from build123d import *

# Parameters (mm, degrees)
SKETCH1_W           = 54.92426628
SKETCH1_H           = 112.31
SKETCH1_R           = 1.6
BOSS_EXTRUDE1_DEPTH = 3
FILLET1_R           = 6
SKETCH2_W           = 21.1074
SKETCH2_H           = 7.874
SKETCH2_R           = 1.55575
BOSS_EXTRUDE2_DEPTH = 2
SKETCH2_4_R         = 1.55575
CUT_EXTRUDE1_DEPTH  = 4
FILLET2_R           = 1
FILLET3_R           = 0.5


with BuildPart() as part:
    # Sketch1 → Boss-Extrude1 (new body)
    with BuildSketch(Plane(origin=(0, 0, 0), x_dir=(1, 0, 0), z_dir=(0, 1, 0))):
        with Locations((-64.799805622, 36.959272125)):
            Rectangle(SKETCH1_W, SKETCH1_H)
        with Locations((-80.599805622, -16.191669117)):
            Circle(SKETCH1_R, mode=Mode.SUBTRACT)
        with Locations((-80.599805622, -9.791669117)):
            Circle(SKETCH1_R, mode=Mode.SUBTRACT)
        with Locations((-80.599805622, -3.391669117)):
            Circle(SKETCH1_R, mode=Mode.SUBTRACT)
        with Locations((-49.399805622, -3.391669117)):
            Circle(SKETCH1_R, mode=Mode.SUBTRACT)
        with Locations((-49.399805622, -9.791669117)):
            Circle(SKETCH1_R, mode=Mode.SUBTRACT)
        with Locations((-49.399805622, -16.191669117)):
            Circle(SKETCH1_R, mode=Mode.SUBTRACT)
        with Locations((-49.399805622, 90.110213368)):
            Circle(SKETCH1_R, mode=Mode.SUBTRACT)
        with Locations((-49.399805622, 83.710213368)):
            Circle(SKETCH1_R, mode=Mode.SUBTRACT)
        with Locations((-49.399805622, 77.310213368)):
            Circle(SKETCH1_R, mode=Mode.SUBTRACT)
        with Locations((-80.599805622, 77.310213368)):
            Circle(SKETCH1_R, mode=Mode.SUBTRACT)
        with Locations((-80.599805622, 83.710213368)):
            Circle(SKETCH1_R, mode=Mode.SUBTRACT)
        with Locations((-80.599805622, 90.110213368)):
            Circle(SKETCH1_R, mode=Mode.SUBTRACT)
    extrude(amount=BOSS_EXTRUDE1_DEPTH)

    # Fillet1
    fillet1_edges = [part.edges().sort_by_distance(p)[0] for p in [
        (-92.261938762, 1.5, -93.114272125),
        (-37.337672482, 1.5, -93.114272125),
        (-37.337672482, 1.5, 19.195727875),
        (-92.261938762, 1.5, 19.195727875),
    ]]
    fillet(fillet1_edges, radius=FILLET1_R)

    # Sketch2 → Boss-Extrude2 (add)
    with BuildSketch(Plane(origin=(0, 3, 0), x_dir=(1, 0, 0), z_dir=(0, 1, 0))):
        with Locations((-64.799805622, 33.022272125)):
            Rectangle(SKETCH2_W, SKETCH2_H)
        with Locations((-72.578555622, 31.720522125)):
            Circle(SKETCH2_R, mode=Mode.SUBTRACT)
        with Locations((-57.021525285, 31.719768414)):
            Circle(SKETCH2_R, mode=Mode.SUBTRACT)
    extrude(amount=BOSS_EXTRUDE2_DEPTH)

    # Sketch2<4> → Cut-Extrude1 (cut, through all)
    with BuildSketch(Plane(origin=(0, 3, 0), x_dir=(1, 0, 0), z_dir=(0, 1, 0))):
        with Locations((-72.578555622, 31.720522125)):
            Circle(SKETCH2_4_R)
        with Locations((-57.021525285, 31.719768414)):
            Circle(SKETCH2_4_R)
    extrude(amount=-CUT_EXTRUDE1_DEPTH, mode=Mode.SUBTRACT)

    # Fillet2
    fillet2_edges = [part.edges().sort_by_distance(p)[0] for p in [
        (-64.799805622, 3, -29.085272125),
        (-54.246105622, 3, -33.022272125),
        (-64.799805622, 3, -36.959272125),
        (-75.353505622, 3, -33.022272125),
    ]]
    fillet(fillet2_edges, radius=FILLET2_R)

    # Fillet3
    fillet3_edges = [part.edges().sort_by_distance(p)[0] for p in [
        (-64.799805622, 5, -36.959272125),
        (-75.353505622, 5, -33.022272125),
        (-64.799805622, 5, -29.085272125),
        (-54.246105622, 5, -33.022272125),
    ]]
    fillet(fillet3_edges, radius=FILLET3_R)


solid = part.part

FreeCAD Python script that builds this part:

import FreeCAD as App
import Part
import Sketcher


def edges_at(feature, points):
    """Names of the edges that pass closest to the given points."""
    edges = feature.Shape.Edges
    near = lambda p: min(range(len(edges)), key=lambda i: edges[i].distToShape(Part.Vertex(*p))[0])
    return sorted({f"Edge{near(p) + 1}" for p in points})


def add_polygon(sketch, points):
    """Adds a closed chain of lines whose ends are joined by coincident constraints."""
    first, n = sketch.GeometryCount, len(points)
    for a, b in zip(points, points[1:] + points[:1]):
        sketch.addGeometry(Part.LineSegment(App.Vector(*a, 0), App.Vector(*b, 0)), False)
    for i in range(n):
        sketch.addConstraint(Sketcher.Constraint("Coincident", first + i, 2, first + (i + 1) % n, 1))

doc = App.newDocument("Part")
body = doc.addObject("PartDesign::Body", "Body")

# Sketch on XZ plane
sketch1 = body.newObject("Sketcher::SketchObject", "Sketch")
sketch1.AttachmentSupport = (doc.getObject("XZ_Plane"), [""])
sketch1.MapMode = "FlatFace"
add_polygon(sketch1, [(-92.3, -93.1), (-92.3, 19.2), (-37.3, 19.2), (-37.3, -93.1)])  # lines 0-3
sketch1.addGeometry(Part.Circle(App.Vector(-80.6, 16.2, 0), App.Vector(0, 0, 1), 1.6), False)  # 4
sketch1.addGeometry(Part.Circle(App.Vector(-80.6, 9.8, 0), App.Vector(0, 0, 1), 1.6), False)  # 5
sketch1.addGeometry(Part.Circle(App.Vector(-80.6, 3.4, 0), App.Vector(0, 0, 1), 1.6), False)  # 6
sketch1.addGeometry(Part.Circle(App.Vector(-49.4, 16.2, 0), App.Vector(0, 0, 1), 1.6), False)  # 7
sketch1.addGeometry(Part.Circle(App.Vector(-49.4, 9.8, 0), App.Vector(0, 0, 1), 1.6), False)  # 8
sketch1.addGeometry(Part.Circle(App.Vector(-49.4, 3.4, 0), App.Vector(0, 0, 1), 1.6), False)  # 9
sketch1.addGeometry(Part.Circle(App.Vector(-80.6, -77.3, 0), App.Vector(0, 0, 1), 1.6), False)  # 10
sketch1.addGeometry(Part.Circle(App.Vector(-80.6, -83.7, 0), App.Vector(0, 0, 1), 1.6), False)  # 11
sketch1.addGeometry(Part.Circle(App.Vector(-80.6, -90.1, 0), App.Vector(0, 0, 1), 1.6), False)  # 12
sketch1.addGeometry(Part.Circle(App.Vector(-49.4, -77.3, 0), App.Vector(0, 0, 1), 1.6), False)  # 13
sketch1.addGeometry(Part.Circle(App.Vector(-49.4, -83.7, 0), App.Vector(0, 0, 1), 1.6), False)  # 14
sketch1.addGeometry(Part.Circle(App.Vector(-49.4, -90.1, 0), App.Vector(0, 0, 1), 1.6), False)  # 15
sketch1.addConstraint([
    Sketcher.Constraint("Vertical", 0),
    Sketcher.Constraint("Horizontal", 1),
    Sketcher.Constraint("Vertical", 2),
    Sketcher.Constraint("Horizontal", 3),
    Sketcher.Constraint("Equal", 4, 5),
    Sketcher.Constraint("Equal", 5, 6),
    Sketcher.Constraint("Equal", 6, 7),
    Sketcher.Constraint("Equal", 7, 8),
    Sketcher.Constraint("Equal", 8, 9),
    Sketcher.Constraint("Equal", 9, 10),
    Sketcher.Constraint("Equal", 10, 11),
    Sketcher.Constraint("Equal", 11, 12),
    Sketcher.Constraint("Equal", 12, 13),
    Sketcher.Constraint("Equal", 13, 14),
    Sketcher.Constraint("Equal", 14, 15),
    Sketcher.Constraint("Horizontal", 4, 3, 7, 3),
    Sketcher.Constraint("Horizontal", 5, 3, 8, 3),
    Sketcher.Constraint("Horizontal", 6, 3, 9, 3),
    Sketcher.Constraint("Horizontal", 10, 3, 13, 3),
    Sketcher.Constraint("Horizontal", 11, 3, 14, 3),
    Sketcher.Constraint("Horizontal", 12, 3, 15, 3),
    Sketcher.Constraint("Vertical", 4, 3, 5, 3),
    Sketcher.Constraint("Vertical", 5, 3, 6, 3),
    Sketcher.Constraint("Vertical", 7, 3, 8, 3),
    Sketcher.Constraint("Vertical", 8, 3, 9, 3),
    Sketcher.Constraint("Vertical", 6, 3, 10, 3),
    Sketcher.Constraint("Vertical", 10, 3, 11, 3),
    Sketcher.Constraint("Vertical", 11, 3, 12, 3),
    Sketcher.Constraint("Vertical", 9, 3, 13, 3),
    Sketcher.Constraint("Vertical", 13, 3, 14, 3),
    Sketcher.Constraint("Vertical", 14, 3, 15, 3),
    Sketcher.Constraint("Diameter", 4, 3.2),
    Sketcher.Constraint("DistanceY", 0, 1, 0, 2, 112.31),
    Sketcher.Constraint("DistanceY", 5, 3, 4, 3, 6.4),
    Sketcher.Constraint("DistanceY", 6, 3, 5, 3, 6.4),
    Sketcher.Constraint("DistanceX", 4, 3, 7, 3, 31.2),
    Sketcher.Constraint("DistanceY", 11, 3, 10, 3, 6.4),
    Sketcher.Constraint("DistanceY", 12, 3, 11, 3, 6.4),
    Sketcher.Constraint("DistanceX", 1, 1, 1, 2, 54.924266),
    Sketcher.Constraint("DistanceY", -1, 1, 4, 3, 16.191669),
    Sketcher.Constraint("DistanceX", 0, 2, -1, 1, 92.261939),
    Sketcher.Constraint("DistanceY", 4, 3, 0, 2, 3.004059),
    Sketcher.Constraint("DistanceY", 2, 2, 15, 3, 3.004059),
    Sketcher.Constraint("DistanceX", 4, 3, -1, 1, 80.599806),
])
pad1 = body.newObject("PartDesign::Pad", "Pad")
pad1.Profile = sketch1
pad1.Length = 3
pad1.Reversed = True
doc.recompute()

fillet = body.newObject("PartDesign::Fillet", "Fillet")
fillet.Base = (pad1, edges_at(pad1, [
    (-92.262, 1.5, -93.114),
    (-37.338, 1.5, -93.114),
    (-37.338, 1.5, 19.196),
    (-92.262, 1.5, 19.196),
]))
fillet.Radius = 6

# Sketch on XZ plane
sketch2 = body.newObject("Sketcher::SketchObject", "Sketch001")
sketch2.AttachmentSupport = (doc.getObject("XZ_Plane"), [""])
sketch2.MapMode = "FlatFace"
sketch2.AttachmentOffset = App.Placement(App.Vector(0, 0, -3), App.Rotation())
add_polygon(sketch2, [(-75.4, -37), (-75.4, -29.1), (-54.2, -29.1), (-54.2, -37)])  # lines 0-3
sketch2.addGeometry(Part.Circle(App.Vector(-57, -31.7, 0), App.Vector(0, 0, 1), 1.6), False)  # 4
sketch2.addGeometry(Part.Circle(App.Vector(-72.6, -31.7, 0), App.Vector(0, 0, 1), 1.6), False)  # 5
sketch2.addConstraint([
    Sketcher.Constraint("Vertical", 0),
    Sketcher.Constraint("Horizontal", 1),
    Sketcher.Constraint("Vertical", 2),
    Sketcher.Constraint("Horizontal", 3),
    Sketcher.Constraint("Equal", 4, 5),
    Sketcher.Constraint("Diameter", 4, 3.1115),
    Sketcher.Constraint("DistanceY", 0, 1, 0, 2, 7.874),
    Sketcher.Constraint("DistanceX", 1, 1, 1, 2, 21.1074),
    Sketcher.Constraint("DistanceY", 4, 3, -1, 1, 31.719768),
    Sketcher.Constraint("DistanceX", 5, 3, 4, 3, 15.55703),
    Sketcher.Constraint("DistanceX", 0, 2, 5, 3, 2.77495),
    Sketcher.Constraint("DistanceY", 5, 3, 0, 2, 2.63525),
    Sketcher.Constraint("DistanceX", 4, 3, -1, 1, 57.021525),
    Sketcher.Constraint("DistanceY", 5, 3, -1, 1, 31.720522),
])
pad2 = body.newObject("PartDesign::Pad", "Pad001")
pad2.Profile = sketch2
pad2.Length = 2
pad2.Reversed = True

# Sketch on XZ plane
sketch3 = body.newObject("Sketcher::SketchObject", "Sketch002")
sketch3.AttachmentSupport = (doc.getObject("XZ_Plane"), [""])
sketch3.MapMode = "FlatFace"
sketch3.AttachmentOffset = App.Placement(App.Vector(0, 0, -3), App.Rotation())
sketch3.addGeometry([
    Part.Circle(App.Vector(-72.6, -31.7, 0), App.Vector(0, 0, 1), 1.6),
    Part.Circle(App.Vector(-57, -31.7, 0), App.Vector(0, 0, 1), 1.6),
], False)
sketch3.addConstraint([
    Sketcher.Constraint("Equal", 0, 1),
    Sketcher.Constraint("Diameter", 0, 3.1115),
    Sketcher.Constraint("DistanceY", 1, 3, -1, 1, 31.719768),
    Sketcher.Constraint("DistanceX", 0, 3, 1, 3, 15.55703),
    Sketcher.Constraint("DistanceX", 0, 3, -1, 1, 72.578556),
    Sketcher.Constraint("DistanceY", 0, 3, -1, 1, 31.720522),
])
pocket1 = body.newObject("PartDesign::Pocket", "Pocket")
pocket1.Profile = sketch3
pocket1.Type = "ThroughAll"
pocket1.Reversed = True
doc.recompute()

fillet2 = body.newObject("PartDesign::Fillet", "Fillet001")
fillet2.Base = (pocket1, edges_at(pocket1, [
    (-64.8, 3, -29.085),
    (-54.246, 3, -33.022),
    (-64.8, 3, -36.959),
    (-75.354, 3, -33.022),
]))
fillet2.Radius = 1
doc.recompute()

fillet3 = body.newObject("PartDesign::Fillet", "Fillet002")
fillet3.Base = (fillet2, edges_at(fillet2, [
    (-64.8, 5, -36.959),
    (-75.354, 5, -33.022),
    (-64.8, 5, -29.085),
    (-54.246, 5, -33.022),
]))
fillet3.Radius = 0.5

doc.recompute()
